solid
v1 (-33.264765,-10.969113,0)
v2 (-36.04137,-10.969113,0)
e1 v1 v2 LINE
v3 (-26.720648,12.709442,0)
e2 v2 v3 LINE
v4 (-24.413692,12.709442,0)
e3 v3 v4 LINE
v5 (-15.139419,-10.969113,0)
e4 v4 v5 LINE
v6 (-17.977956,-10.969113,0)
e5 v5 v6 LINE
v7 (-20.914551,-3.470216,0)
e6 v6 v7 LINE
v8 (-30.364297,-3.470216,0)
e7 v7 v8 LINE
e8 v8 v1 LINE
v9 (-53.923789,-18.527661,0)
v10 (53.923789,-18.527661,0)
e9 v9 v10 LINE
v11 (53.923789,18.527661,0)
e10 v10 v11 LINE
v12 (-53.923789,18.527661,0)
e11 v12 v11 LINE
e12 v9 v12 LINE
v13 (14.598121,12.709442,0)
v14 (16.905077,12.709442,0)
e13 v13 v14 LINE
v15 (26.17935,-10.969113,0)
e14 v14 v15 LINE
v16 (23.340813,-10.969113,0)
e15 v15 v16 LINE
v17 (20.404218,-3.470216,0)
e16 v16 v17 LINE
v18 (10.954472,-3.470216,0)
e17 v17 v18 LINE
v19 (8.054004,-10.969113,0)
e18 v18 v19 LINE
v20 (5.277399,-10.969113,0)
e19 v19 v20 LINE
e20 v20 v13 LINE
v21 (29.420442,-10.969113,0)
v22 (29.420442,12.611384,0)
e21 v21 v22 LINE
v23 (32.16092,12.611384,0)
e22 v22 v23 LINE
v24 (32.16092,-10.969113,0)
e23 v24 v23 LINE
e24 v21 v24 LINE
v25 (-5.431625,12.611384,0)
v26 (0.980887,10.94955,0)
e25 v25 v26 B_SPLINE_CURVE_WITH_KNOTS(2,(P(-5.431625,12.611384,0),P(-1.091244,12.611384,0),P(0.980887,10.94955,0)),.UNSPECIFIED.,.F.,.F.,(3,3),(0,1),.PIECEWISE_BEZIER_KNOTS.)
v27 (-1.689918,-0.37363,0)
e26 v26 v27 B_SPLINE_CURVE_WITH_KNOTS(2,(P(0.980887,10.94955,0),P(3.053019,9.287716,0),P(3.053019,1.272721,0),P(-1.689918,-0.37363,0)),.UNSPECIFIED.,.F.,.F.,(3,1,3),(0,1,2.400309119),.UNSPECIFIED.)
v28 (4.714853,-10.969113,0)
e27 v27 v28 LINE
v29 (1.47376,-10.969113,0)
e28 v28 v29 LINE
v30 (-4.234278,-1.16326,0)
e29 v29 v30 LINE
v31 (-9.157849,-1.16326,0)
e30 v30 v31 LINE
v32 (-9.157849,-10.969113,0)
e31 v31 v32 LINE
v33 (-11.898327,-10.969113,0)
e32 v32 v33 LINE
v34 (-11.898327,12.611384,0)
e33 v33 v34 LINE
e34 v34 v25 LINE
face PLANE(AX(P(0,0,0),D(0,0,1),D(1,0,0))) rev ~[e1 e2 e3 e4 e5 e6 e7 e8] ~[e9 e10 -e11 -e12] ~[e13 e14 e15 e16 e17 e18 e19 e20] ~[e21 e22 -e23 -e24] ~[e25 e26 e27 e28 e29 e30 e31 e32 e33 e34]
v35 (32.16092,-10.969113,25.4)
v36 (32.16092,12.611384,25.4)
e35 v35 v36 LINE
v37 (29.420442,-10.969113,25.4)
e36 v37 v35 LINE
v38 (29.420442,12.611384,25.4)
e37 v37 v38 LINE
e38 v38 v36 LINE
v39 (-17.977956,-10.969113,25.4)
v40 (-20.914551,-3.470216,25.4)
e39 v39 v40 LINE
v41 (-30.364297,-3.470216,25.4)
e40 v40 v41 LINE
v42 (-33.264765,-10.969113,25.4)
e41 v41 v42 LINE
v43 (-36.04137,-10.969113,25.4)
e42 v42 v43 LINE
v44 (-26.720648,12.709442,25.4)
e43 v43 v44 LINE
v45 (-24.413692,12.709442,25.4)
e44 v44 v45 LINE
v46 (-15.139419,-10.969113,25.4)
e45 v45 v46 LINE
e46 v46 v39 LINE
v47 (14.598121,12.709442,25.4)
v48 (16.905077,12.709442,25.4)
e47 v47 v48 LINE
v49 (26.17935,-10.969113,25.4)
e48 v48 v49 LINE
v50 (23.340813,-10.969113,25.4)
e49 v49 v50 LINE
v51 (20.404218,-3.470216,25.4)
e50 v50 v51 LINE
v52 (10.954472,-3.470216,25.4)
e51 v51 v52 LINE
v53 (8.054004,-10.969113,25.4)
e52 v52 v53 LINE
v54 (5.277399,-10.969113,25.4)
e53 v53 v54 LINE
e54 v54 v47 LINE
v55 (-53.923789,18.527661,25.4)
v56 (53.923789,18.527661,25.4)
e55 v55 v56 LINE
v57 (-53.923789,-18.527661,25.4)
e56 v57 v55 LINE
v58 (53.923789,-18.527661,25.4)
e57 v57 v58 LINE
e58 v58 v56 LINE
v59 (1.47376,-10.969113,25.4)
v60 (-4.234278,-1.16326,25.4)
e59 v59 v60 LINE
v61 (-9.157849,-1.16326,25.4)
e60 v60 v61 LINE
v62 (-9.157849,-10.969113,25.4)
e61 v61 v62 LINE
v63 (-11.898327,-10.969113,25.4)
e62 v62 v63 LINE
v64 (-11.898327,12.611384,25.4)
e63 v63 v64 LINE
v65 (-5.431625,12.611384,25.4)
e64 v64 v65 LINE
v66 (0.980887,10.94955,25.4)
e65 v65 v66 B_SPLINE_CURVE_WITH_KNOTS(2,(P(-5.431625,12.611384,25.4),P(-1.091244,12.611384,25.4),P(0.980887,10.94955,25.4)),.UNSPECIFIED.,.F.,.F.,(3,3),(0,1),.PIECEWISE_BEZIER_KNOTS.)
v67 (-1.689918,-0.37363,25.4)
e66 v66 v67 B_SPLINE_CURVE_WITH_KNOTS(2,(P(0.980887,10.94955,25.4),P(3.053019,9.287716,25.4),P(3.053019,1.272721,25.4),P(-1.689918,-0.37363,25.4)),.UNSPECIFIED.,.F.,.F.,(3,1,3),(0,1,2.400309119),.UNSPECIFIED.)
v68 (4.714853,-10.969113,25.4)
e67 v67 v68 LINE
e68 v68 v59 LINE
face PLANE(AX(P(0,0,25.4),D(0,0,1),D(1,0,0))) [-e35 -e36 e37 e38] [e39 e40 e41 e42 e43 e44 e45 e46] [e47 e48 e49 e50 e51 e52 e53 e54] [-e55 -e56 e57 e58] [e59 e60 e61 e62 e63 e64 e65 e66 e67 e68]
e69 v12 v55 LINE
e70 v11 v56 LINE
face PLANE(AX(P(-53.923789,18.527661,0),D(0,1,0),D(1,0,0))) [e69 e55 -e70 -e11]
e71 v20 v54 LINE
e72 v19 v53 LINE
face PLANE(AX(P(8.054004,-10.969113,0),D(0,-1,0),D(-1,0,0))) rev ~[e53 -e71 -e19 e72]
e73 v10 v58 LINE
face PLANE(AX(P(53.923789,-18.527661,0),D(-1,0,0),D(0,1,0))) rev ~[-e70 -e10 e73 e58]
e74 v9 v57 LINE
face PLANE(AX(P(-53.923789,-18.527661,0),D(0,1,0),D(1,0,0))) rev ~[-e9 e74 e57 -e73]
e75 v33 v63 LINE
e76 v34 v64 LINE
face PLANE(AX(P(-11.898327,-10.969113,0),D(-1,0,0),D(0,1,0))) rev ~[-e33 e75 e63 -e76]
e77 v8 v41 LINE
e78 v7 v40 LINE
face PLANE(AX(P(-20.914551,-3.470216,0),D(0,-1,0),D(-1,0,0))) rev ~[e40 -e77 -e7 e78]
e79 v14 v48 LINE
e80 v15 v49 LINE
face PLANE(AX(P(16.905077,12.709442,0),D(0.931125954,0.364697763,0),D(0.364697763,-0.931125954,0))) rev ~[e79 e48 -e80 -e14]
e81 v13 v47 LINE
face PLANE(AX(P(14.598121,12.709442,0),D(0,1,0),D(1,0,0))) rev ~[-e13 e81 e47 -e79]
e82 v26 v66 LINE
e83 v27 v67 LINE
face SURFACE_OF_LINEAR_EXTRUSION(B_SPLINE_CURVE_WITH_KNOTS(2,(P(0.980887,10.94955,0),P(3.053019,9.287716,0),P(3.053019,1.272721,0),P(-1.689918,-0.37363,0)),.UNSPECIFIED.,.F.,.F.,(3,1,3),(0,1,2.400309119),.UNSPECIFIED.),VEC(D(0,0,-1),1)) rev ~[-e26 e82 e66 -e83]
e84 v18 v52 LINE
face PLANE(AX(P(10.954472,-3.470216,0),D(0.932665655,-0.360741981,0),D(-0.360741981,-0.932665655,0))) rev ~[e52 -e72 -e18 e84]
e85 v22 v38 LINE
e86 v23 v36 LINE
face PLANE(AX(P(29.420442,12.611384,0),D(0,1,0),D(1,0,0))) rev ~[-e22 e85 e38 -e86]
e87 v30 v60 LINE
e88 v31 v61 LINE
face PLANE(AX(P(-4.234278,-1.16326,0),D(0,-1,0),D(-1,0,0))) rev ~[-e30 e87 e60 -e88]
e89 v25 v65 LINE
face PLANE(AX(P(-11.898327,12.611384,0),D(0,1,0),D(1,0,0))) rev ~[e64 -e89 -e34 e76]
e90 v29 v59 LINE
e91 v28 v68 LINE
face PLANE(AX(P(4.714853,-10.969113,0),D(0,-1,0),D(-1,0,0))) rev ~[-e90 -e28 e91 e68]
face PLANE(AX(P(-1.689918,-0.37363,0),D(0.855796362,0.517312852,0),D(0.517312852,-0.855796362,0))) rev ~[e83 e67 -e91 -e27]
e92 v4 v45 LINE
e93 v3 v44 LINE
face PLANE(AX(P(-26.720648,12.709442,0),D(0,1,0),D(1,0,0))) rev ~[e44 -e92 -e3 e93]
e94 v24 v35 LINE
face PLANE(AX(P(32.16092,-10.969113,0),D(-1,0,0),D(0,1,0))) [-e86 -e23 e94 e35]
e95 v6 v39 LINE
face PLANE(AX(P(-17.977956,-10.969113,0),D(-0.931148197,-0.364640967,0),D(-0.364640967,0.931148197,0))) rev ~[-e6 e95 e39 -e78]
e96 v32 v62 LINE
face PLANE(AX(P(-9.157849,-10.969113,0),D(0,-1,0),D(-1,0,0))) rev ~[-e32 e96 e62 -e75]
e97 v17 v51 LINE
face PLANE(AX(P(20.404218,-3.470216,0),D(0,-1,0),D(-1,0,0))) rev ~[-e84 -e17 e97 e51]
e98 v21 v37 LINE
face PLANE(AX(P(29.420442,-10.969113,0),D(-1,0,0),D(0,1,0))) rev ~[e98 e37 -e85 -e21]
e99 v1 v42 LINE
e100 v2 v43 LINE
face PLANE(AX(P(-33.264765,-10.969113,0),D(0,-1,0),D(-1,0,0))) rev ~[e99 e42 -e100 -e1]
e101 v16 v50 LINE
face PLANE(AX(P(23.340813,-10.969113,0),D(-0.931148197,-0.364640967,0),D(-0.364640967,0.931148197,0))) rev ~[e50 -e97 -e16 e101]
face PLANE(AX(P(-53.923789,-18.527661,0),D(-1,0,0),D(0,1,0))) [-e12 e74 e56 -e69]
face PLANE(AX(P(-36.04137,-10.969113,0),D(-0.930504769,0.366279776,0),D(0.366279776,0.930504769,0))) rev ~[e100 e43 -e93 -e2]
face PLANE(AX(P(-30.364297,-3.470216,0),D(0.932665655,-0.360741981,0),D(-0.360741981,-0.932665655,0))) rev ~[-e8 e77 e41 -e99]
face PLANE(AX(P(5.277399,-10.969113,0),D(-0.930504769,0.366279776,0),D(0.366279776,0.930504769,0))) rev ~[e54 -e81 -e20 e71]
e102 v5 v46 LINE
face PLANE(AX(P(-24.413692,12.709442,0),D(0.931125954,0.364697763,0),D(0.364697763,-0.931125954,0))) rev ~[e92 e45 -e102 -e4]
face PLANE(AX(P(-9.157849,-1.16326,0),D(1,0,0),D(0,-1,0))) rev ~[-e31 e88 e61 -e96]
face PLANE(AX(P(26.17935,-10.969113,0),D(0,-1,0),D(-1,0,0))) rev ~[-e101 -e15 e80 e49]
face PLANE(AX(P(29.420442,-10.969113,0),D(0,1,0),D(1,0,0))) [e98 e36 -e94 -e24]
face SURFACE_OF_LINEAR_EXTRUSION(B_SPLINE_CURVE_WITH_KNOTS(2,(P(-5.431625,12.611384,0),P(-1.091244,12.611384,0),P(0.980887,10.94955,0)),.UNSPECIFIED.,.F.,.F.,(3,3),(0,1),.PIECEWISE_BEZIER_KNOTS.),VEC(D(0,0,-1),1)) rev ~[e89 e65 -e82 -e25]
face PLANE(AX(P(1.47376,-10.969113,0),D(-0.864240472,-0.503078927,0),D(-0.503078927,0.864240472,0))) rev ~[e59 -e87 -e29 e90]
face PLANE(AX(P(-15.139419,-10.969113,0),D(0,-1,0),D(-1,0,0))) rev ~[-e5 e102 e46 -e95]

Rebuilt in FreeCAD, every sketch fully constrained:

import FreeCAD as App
import Part
import Sketcher
Q = App.Units.Quantity


def add_polygon(sketch, points):
    """Adds a closed chain of lines whose ends are joined by coincident constraints."""
    first, n = sketch.GeometryCount, len(points)
    for a, b in zip(points, points[1:] + points[:1]):
        sketch.addGeometry(Part.LineSegment(App.Vector(*a, 0), App.Vector(*b, 0)), False)
    for i in range(n):
        sketch.addConstraint(Sketcher.Constraint("Coincident", first + i, 2, first + (i + 1) % n, 1))

doc = App.newDocument("Part")
body = doc.addObject("PartDesign::Body", "Body")

# Sketch on XY plane
sketch1 = body.newObject("Sketcher::SketchObject", "Sketch")
sketch1.AttachmentSupport = (doc.getObject("XY_Plane"), [""])
sketch1.MapMode = "FlatFace"
add_polygon(sketch1, [(-53.923789, 18.527661), (-53.923789, -18.527661), (53.923789, -18.527661), (53.923789, 18.527661)])  # lines 0-3
sketch1.addGeometry(Part.LineSegment(App.Vector(1.47376, -10.969113, 0), App.Vector(-4.234278, -1.16326, 0)), False)  # 4
sketch1.addGeometry(Part.LineSegment(App.Vector(-4.234278, -1.16326, 0), App.Vector(-9.157849, -1.16326, 0)), False)  # 5
sketch1.addGeometry(Part.LineSegment(App.Vector(-9.157849, -1.16326, 0), App.Vector(-9.157849, -10.969113, 0)), False)  # 6
sketch1.addGeometry(Part.LineSegment(App.Vector(-9.157849, -10.969113, 0), App.Vector(-11.898327, -10.969113, 0)), False)  # 7
sketch1.addGeometry(Part.LineSegment(App.Vector(-11.898327, -10.969113, 0), App.Vector(-11.898327, 12.611384, 0)), False)  # 8
sketch1.addGeometry(Part.LineSegment(App.Vector(-11.898327, 12.611384, 0), App.Vector(-5.431625, 12.611384, 0)), False)  # 9
sketch1.addGeometry(Part.BSplineCurve([App.Vector(-5.431625, 12.611384, 0), App.Vector(-1.091244, 12.611384, 0), App.Vector(0.980887, 10.94955, 0)], [3, 3], [0, 1], False, 2, [1, 1, 1], False), False)  # 10
sketch1.addGeometry(Part.BSplineCurve([App.Vector(0.980887, 10.94955, 0), App.Vector(3.053019, 9.287716, 0), App.Vector(3.053019, 1.272721, 0), App.Vector(-1.689918, -0.37363, 0)], [3, 1, 3], [0, 1, 2.400309119], False, 2, [1, 1, 1, 1], False), False)  # 11
sketch1.addGeometry(Part.LineSegment(App.Vector(-1.689918, -0.37363, 0), App.Vector(4.714853, -10.969113, 0)), False)  # 12
sketch1.addGeometry(Part.LineSegment(App.Vector(4.714853, -10.969113, 0), App.Vector(1.47376, -10.969113, 0)), False)  # 13
add_polygon(sketch1, [(32.16092, -10.969113), (29.420442, -10.969113), (29.420442, 12.611384), (32.16092, 12.611384)])  # lines 14-17
add_polygon(sketch1, [(-24.413692, 12.709442), (-15.139419, -10.969113), (-17.977956, -10.969113), (-20.914551, -3.470216), (-30.364297, -3.470216), (-33.264765, -10.969113), (-36.04137, -10.969113), (-26.720648, 12.709442)])  # lines 18-25
add_polygon(sketch1, [(16.905077, 12.709442), (26.17935, -10.969113), (23.340813, -10.969113), (20.404218, -3.470216), (10.954472, -3.470216), (8.054004, -10.969113), (5.277399, -10.969113), (14.598121, 12.709442)])  # lines 26-33
sketch1.addConstraint([
    Sketcher.Constraint("Block", 10),
    Sketcher.Constraint("Block", 11),
    Sketcher.Constraint("Coincident", 4, 2, 5, 1),
    Sketcher.Constraint("Coincident", 5, 2, 6, 1),
    Sketcher.Constraint("Coincident", 6, 2, 7, 1),
    Sketcher.Constraint("Coincident", 7, 2, 8, 1),
    Sketcher.Constraint("Coincident", 8, 2, 9, 1),
    Sketcher.Constraint("Coincident", 9, 2, 10, 1),
    Sketcher.Constraint("Coincident", 11, 2, 12, 1),
    Sketcher.Constraint("Coincident", 12, 2, 13, 1),
    Sketcher.Constraint("Coincident", 13, 2, 4, 1),
    Sketcher.Constraint("Vertical", 0),
    Sketcher.Constraint("Horizontal", 1),
    Sketcher.Constraint("Vertical", 2),
    Sketcher.Constraint("Horizontal", 3),
    Sketcher.Constraint("Horizontal", 5),
    Sketcher.Constraint("Vertical", 6),
    Sketcher.Constraint("Horizontal", 7),
    Sketcher.Constraint("Vertical", 8),
    Sketcher.Constraint("Horizontal", 9),
    Sketcher.Constraint("Horizontal", 13),
    Sketcher.Constraint("Horizontal", 14),
    Sketcher.Constraint("Vertical", 15),
    Sketcher.Constraint("Horizontal", 16),
    Sketcher.Constraint("Vertical", 17),
    Sketcher.Constraint("Horizontal", 19),
    Sketcher.Constraint("Horizontal", 21),
    Sketcher.Constraint("Horizontal", 23),
    Sketcher.Constraint("Horizontal", 25),
    Sketcher.Constraint("Horizontal", 27),
    Sketcher.Constraint("Horizontal", 29),
    Sketcher.Constraint("Horizontal", 31),
    Sketcher.Constraint("Horizontal", 33),
    Sketcher.Constraint("Symmetric", 0, 2, 2, 2, -1, 1),
    Sketcher.Constraint("Parallel", 18, 26),
    Sketcher.Constraint("Parallel", 20, 28),
    Sketcher.Constraint("Parallel", 22, 30),
    Sketcher.Constraint("Parallel", 24, 32),
    Sketcher.Constraint("Horizontal", 7, 2, 12, 2),
    Sketcher.Constraint("Horizontal", 13, 2, 14, 2),
    Sketcher.Constraint("Horizontal", 9, 2, 15, 2),
    Sketcher.Constraint("Horizontal", 17, 2, 18, 2),
    Sketcher.Constraint("Horizontal", 19, 2, 22, 2),
    Sketcher.Constraint("Horizontal", 23, 2, 26, 2),
    Sketcher.Constraint("Horizontal", 21, 2, 28, 2),
    Sketcher.Constraint("Horizontal", 27, 2, 30, 2),
    Sketcher.Constraint("Horizontal", 25, 2, 32, 2),
    Sketcher.Constraint("Equal", 7, 14),
    Sketcher.Constraint("Equal", 19, 27),
    Sketcher.Constraint("Equal", 21, 29),
    Sketcher.Constraint("Equal", 23, 31),
    Sketcher.Constraint("Distance", 24, 25.447),
    Sketcher.Constraint("DistanceX", 1, 1, 1, 2, 107.847579),
    Sketcher.Constraint("DistanceX", 5, 2, 5, 1, 4.923571),
    Sketcher.Constraint("DistanceY", 0, 2, 0, 1, 37.055321),
    Sketcher.Constraint("DistanceX", -1, 1, 31, 2, 5.277399),
    Sketcher.Constraint("DistanceY", 0, 2, 4, 2, 17.364401),
    Sketcher.Constraint("DistanceX", 6, 2, 12, 2, 13.872702),
    Sketcher.Constraint("DistanceX", 20, 2, 5, 2, 11.756702),
    Sketcher.Constraint("DistanceX", 24, 2, 5, 2, 17.562799),
    Sketcher.Constraint("DistanceY", 5, 2, 24, 2, 13.872702),
    Sketcher.Constraint("DistanceX", 28, 2, 17, 2, 11.756702),
    Sketcher.Constraint("Distance", 4, 11.346209),
    Sketcher.Constraint("DistanceX", 7, 2, 7, 1, 2.740478),
    Sketcher.Constraint("DistanceX", 9, 1, 9, 2, 6.466702),
    Sketcher.Constraint("DistanceX", 13, 2, 13, 1, 3.241093),
    Sketcher.Constraint("DistanceX", 19, 2, 19, 1, 2.838536),
    Sketcher.Constraint("DistanceX", 21, 2, 21, 1, 9.449746),
    Sketcher.Constraint("DistanceX", 23, 2, 23, 1, 2.776605),
    Sketcher.Constraint("DistanceX", 25, 1, 25, 2, 2.306956),
    Sketcher.Constraint("DistanceX", 18, 2, -1, 1, 15.139419),
    Sketcher.Constraint("Distance", 20, 8.053387),
])
pad1 = body.newObject("PartDesign::Pad", "Pad")
pad1.Profile = sketch1
pad1.Length = Q("1 in")

doc.recompute()
